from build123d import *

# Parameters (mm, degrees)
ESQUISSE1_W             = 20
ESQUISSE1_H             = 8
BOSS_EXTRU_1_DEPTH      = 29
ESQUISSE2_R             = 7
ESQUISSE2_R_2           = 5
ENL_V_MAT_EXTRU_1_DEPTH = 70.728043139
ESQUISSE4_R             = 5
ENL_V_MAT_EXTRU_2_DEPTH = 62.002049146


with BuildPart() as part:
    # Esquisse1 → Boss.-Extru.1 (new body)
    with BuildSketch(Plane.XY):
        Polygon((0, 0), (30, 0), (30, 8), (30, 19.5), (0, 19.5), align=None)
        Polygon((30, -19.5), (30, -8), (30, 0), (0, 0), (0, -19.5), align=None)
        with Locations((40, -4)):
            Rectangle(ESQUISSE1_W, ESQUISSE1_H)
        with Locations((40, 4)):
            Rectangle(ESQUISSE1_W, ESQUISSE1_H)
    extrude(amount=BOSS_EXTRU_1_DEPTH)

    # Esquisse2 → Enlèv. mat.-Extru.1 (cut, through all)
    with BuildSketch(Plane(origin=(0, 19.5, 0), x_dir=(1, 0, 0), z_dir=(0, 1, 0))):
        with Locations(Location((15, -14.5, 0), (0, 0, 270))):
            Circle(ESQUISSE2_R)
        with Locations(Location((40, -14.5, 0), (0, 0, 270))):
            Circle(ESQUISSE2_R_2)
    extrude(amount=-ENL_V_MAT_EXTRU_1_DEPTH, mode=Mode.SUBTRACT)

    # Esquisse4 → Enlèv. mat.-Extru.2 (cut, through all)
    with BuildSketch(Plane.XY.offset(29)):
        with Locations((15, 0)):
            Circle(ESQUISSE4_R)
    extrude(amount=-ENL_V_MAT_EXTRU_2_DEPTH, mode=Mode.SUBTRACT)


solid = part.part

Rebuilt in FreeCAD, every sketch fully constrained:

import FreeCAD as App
import Part
import Sketcher
from FreeCAD import Vector
Q = App.Units.Quantity

doc = App.newDocument("Part")
body = doc.addObject("PartDesign::Body", "Body")

sketch1 = doc.addObject("Sketcher::SketchObject", "Sketch")
body.addObject(sketch1)
sketch1.AttachmentSupport = (doc.XY_Plane, [""])
sketch1.MapMode = "FlatFace"
sketch1.addGeometry(Part.LineSegment(Vector(30, 19.5, 0), Vector(0, 19.5, 0)), False)
sketch1.addGeometry(Part.LineSegment(Vector(0, 19.5, 0), Vector(0, -19.5, 0)), False)
sketch1.addGeometry(Part.LineSegment(Vector(0, -19.5, 0), Vector(30, -19.5, 0)), False)
sketch1.addGeometry(Part.LineSegment(Vector(30, -19.5, 0), Vector(30, -8, 0)), False)
sketch1.addGeometry(Part.LineSegment(Vector(30, -8, 0), Vector(50, -8, 0)), False)
sketch1.addGeometry(Part.LineSegment(Vector(50, -8, 0), Vector(50, 8, 0)), False)
sketch1.addGeometry(Part.LineSegment(Vector(50, 8, 0), Vector(30, 8, 0)), False)
sketch1.addGeometry(Part.LineSegment(Vector(30, 8, 0), Vector(30, 19.5, 0)), False)
sketch1.addConstraint(Sketcher.Constraint("Coincident", 0, 2, 1, 1))
sketch1.addConstraint(Sketcher.Constraint("Coincident", 1, 2, 2, 1))
sketch1.addConstraint(Sketcher.Constraint("Coincident", 2, 2, 3, 1))
sketch1.addConstraint(Sketcher.Constraint("Coincident", 3, 2, 4, 1))
sketch1.addConstraint(Sketcher.Constraint("Coincident", 4, 2, 5, 1))
sketch1.addConstraint(Sketcher.Constraint("Coincident", 5, 2, 6, 1))
sketch1.addConstraint(Sketcher.Constraint("Coincident", 6, 2, 7, 1))
sketch1.addConstraint(Sketcher.Constraint("Coincident", 7, 2, 0, 1))
sketch1.addConstraint(Sketcher.Constraint("Horizontal", 0))
sketch1.addConstraint(Sketcher.Constraint("Vertical", 1))
sketch1.addConstraint(Sketcher.Constraint("Horizontal", 2))
sketch1.addConstraint(Sketcher.Constraint("Vertical", 3))
sketch1.addConstraint(Sketcher.Constraint("Horizontal", 4))
sketch1.addConstraint(Sketcher.Constraint("Vertical", 5))
sketch1.addConstraint(Sketcher.Constraint("Horizontal", 6))
sketch1.addConstraint(Sketcher.Constraint("Vertical", 7))
sketch1.addConstraint(Sketcher.Constraint("Symmetric", 0, 2, 1, 2, -1, 1))
sketch1.addConstraint(Sketcher.Constraint("Symmetric", 3, 2, 6, 2, -1))
sketch1.addConstraint(Sketcher.Constraint("DistanceX", 0, 2, 0, 1, Q("30 mm")))
sketch1.addConstraint(Sketcher.Constraint("DistanceX", 4, 1, 4, 2, Q("20 mm")))
sketch1.addConstraint(Sketcher.Constraint("DistanceY", 1, 2, 1, 1, Q("39 mm")))
sketch1.addConstraint(Sketcher.Constraint("DistanceY", 5, 1, 5, 2, Q("16 mm")))
pad1 = doc.addObject("PartDesign::Pad", "Pad")
body.addObject(pad1)
pad1.Profile = sketch1
pad1.Length = 29

sketch2 = doc.addObject("Sketcher::SketchObject", "Sketch001")
body.addObject(sketch2)
sketch2.AttachmentSupport = (doc.XZ_Plane, [""])
sketch2.MapMode = "FlatFace"
sketch2.AttachmentOffset = App.Placement(Vector(0, 0, -19.5), App.Rotation())
sketch2.addGeometry(Part.Circle(Vector(15, 14.5, 0), Vector(0, 0, 1), 7), False)
sketch2.addGeometry(Part.Circle(Vector(40, 14.5, 0), Vector(0, 0, 1), 5), False)
sketch2.addConstraint(Sketcher.Constraint("Horizontal", 0, 3, 1, 3))
sketch2.addConstraint(Sketcher.Constraint("Diameter", 0, Q("14 mm")))
sketch2.addConstraint(Sketcher.Constraint("Diameter", 1, Q("10 mm")))
sketch2.addConstraint(Sketcher.Constraint("DistanceX", -1, 1, 0, 3, Q("15 mm")))
sketch2.addConstraint(Sketcher.Constraint("DistanceX", -1, 1, 1, 3, Q("40 mm")))
sketch2.addConstraint(Sketcher.Constraint("DistanceY", -1, 1, 0, 3, Q("14.5 mm")))
pocket1 = doc.addObject("PartDesign::Pocket", "Pocket")
body.addObject(pocket1)
pocket1.Profile = sketch2
pocket1.Type = "ThroughAll"
pocket1.Reversed = True

sketch3 = doc.addObject("Sketcher::SketchObject", "Sketch002")
body.addObject(sketch3)
sketch3.AttachmentSupport = (doc.XY_Plane, [""])
sketch3.MapMode = "FlatFace"
sketch3.AttachmentOffset = App.Placement(Vector(0, 0, 29), App.Rotation())
sketch3.addGeometry(Part.Circle(Vector(15, 0, 0), Vector(0, 0, 1), 5), False)
sketch3.addConstraint(Sketcher.Constraint("PointOnObject", 0, 3, -1))
sketch3.addConstraint(Sketcher.Constraint("Diameter", 0, Q("10 mm")))
sketch3.addConstraint(Sketcher.Constraint("DistanceX", -1, 1, 0, 3, Q("15 mm")))
pocket2 = doc.addObject("PartDesign::Pocket", "Pocket001")
body.addObject(pocket2)
pocket2.Profile = sketch3
pocket2.Type = "ThroughAll"

doc.recompute()
